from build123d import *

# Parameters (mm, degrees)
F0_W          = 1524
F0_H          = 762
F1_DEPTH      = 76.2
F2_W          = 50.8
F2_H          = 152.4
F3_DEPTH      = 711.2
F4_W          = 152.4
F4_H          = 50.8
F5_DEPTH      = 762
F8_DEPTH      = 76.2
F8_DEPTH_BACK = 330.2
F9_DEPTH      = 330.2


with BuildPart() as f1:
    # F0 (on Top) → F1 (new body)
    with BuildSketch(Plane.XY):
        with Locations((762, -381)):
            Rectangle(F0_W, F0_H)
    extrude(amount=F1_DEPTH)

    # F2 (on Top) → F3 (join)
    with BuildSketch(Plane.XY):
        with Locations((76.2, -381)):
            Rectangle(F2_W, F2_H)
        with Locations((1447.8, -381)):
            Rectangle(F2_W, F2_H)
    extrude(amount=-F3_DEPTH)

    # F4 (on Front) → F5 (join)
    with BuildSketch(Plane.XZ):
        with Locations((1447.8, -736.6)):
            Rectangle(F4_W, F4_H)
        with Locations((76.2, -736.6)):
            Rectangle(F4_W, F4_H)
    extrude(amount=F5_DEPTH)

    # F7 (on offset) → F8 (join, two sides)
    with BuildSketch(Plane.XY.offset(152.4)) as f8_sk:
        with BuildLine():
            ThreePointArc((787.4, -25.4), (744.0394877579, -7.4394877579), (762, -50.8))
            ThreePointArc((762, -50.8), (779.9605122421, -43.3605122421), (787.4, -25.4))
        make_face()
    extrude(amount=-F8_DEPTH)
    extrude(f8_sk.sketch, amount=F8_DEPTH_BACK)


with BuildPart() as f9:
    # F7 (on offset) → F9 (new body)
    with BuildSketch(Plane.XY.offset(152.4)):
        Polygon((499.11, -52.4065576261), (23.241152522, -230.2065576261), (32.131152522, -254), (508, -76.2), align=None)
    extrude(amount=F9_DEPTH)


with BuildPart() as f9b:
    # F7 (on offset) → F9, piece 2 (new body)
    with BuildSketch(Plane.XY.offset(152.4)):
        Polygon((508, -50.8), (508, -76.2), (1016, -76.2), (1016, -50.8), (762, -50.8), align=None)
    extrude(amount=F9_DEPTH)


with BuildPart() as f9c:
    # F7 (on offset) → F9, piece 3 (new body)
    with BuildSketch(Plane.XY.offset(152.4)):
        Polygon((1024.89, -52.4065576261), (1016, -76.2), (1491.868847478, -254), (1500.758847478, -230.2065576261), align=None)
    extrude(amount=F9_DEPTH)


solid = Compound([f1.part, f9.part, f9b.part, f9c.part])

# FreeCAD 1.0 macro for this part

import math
import FreeCAD as App
import Part
import Sketcher

V = App.Vector
Q = App.Units.Quantity

doc = App.newDocument("Part")
params = doc.addObject("Spreadsheet::Sheet", "Params")
for row, (alias, value) in enumerate([
    ("sketch1_width", "60 in"),
    ("sketch1_height", "30 in"),
    ("pad1_length", "3 in"),
    ("sketch2_width", "2 in"),
    ("sketch2_height", "6 in"),
    ("pad2_length", "28 in"),
    ("sketch3_width", "6 in"),
    ("sketch3_height", "2 in"),
    ("pad3_length", "30 in"),
    ("sketch4_radius", "1 in"),
    ("pad4_length", "3 in"),
    ("pad4_length2", "13 in"),
    ("sketch5_length", "20 in"),
    ("sketch5_length2", "1 in"),
    ("pad5_length", "13 in"),
    ("sketch6_width", "20 in"),
    ("sketch6_height", "1 in"),
    ("pad6_length", "13 in"),
    ("sketch7_length", "1 in"),
    ("sketch7_length2", "20 in"),
    ("pad7_length", "13 in"),
], start=1):
    params.set(f"A{row}", alias)
    params.set(f"B{row}", "=" + value)
    params.setAlias(f"B{row}", alias)

body = doc.addObject("PartDesign::Body", "Body")

sketch1 = doc.addObject("Sketcher::SketchObject", "Sketch")
body.addObject(sketch1)
sketch1.AttachmentSupport = (doc.XY_Plane, [""])
sketch1.MapMode = "FlatFace"
sketch1.addGeometry(Part.LineSegment(V(0, 0, 0), V(0, -762, 0)), False)
sketch1.addGeometry(Part.LineSegment(V(0, -762, 0), V(1524, -762, 0)), False)
sketch1.addGeometry(Part.LineSegment(V(1524, -762, 0), V(1524, 0, 0)), False)
sketch1.addGeometry(Part.LineSegment(V(1524, 0, 0), V(0, 0, 0)), False)
sketch1.addConstraint(Sketcher.Constraint("Coincident", 0, 2, 1, 1))
sketch1.addConstraint(Sketcher.Constraint("Coincident", 1, 2, 2, 1))
sketch1.addConstraint(Sketcher.Constraint("Coincident", 2, 2, 3, 1))
sketch1.addConstraint(Sketcher.Constraint("Coincident", 3, 2, 0, 1))
sketch1.addConstraint(Sketcher.Constraint("Vertical", 0))
sketch1.addConstraint(Sketcher.Constraint("Horizontal", 1))
sketch1.addConstraint(Sketcher.Constraint("Vertical", 2))
sketch1.addConstraint(Sketcher.Constraint("Horizontal", 3))
sketch1.addConstraint(Sketcher.Constraint("Coincident", 3, 2, -1, 1))
sketch1.addConstraint(Sketcher.Constraint("DistanceX", 1, 1, 1, 2, Q("60 in")))
sketch1.addConstraint(Sketcher.Constraint("DistanceY", 0, 2, 0, 1, Q("30 in")))
sketch1.setExpression("Constraints[9]", "Params.sketch1_width")
sketch1.setExpression("Constraints[10]", "Params.sketch1_height")
pad1 = doc.addObject("PartDesign::Pad", "Pad")
body.addObject(pad1)
pad1.Profile = sketch1
pad1.setExpression("Length", "Params.pad1_length")

sketch2 = doc.addObject("Sketcher::SketchObject", "Sketch001")
body.addObject(sketch2)
sketch2.AttachmentSupport = (doc.XY_Plane, [""])
sketch2.MapMode = "FlatFace"
sketch2.addGeometry(Part.LineSegment(V(51, -305, 0), V(51, -457, 0)), False)
sketch2.addGeometry(Part.LineSegment(V(51, -457, 0), V(102, -457, 0)), False)
sketch2.addGeometry(Part.LineSegment(V(102, -457, 0), V(102, -305, 0)), False)
sketch2.addGeometry(Part.LineSegment(V(102, -305, 0), V(51, -305, 0)), False)
sketch2.addGeometry(Part.LineSegment(V(1422, -305, 0), V(1422, -457, 0)), False)
sketch2.addGeometry(Part.LineSegment(V(1422, -457, 0), V(1473, -457, 0)), False)
sketch2.addGeometry(Part.LineSegment(V(1473, -457, 0), V(1473, -305, 0)), False)
sketch2.addGeometry(Part.LineSegment(V(1473, -305, 0), V(1422, -305, 0)), False)
sketch2.addConstraint(Sketcher.Constraint("Coincident", 0, 2, 1, 1))
sketch2.addConstraint(Sketcher.Constraint("Coincident", 1, 2, 2, 1))
sketch2.addConstraint(Sketcher.Constraint("Coincident", 2, 2, 3, 1))
sketch2.addConstraint(Sketcher.Constraint("Coincident", 3, 2, 0, 1))
sketch2.addConstraint(Sketcher.Constraint("Coincident", 4, 2, 5, 1))
sketch2.addConstraint(Sketcher.Constraint("Coincident", 5, 2, 6, 1))
sketch2.addConstraint(Sketcher.Constraint("Coincident", 6, 2, 7, 1))
sketch2.addConstraint(Sketcher.Constraint("Coincident", 7, 2, 4, 1))
sketch2.addConstraint(Sketcher.Constraint("Vertical", 0))
sketch2.addConstraint(Sketcher.Constraint("Horizontal", 1))
sketch2.addConstraint(Sketcher.Constraint("Vertical", 2))
sketch2.addConstraint(Sketcher.Constraint("Horizontal", 3))
sketch2.addConstraint(Sketcher.Constraint("Vertical", 4))
sketch2.addConstraint(Sketcher.Constraint("Horizontal", 5))
sketch2.addConstraint(Sketcher.Constraint("Vertical", 6))
sketch2.addConstraint(Sketcher.Constraint("Horizontal", 7))
sketch2.addConstraint(Sketcher.Constraint("Horizontal", 1, 2, 4, 2))
sketch2.addConstraint(Sketcher.Constraint("Horizontal", 3, 2, 6, 2))
sketch2.addConstraint(Sketcher.Constraint("Equal", 3, 5))
sketch2.addConstraint(Sketcher.Constraint("DistanceX", 1, 1, 1, 2, Q("2 in")))
sketch2.addConstraint(Sketcher.Constraint("DistanceY", 0, 2, 0, 1, Q("6 in")))
sketch2.addConstraint(Sketcher.Constraint("DistanceX", -1, 1, 0, 2, Q("2 in")))
sketch2.addConstraint(Sketcher.Constraint("DistanceY", 0, 2, -1, 1, Q("18 in")))
sketch2.addConstraint(Sketcher.Constraint("DistanceX", -1, 1, 4, 2, Q("56 in")))
sketch2.setExpression("Constraints[19]", "Params.sketch2_width")
sketch2.setExpression("Constraints[20]", "Params.sketch2_height")
pad2 = doc.addObject("PartDesign::Pad", "Pad001")
body.addObject(pad2)
pad2.Profile = sketch2
pad2.setExpression("Length", "Params.pad2_length")
pad2.Reversed = True

sketch3 = doc.addObject("Sketcher::SketchObject", "Sketch002")
body.addObject(sketch3)
sketch3.AttachmentSupport = (doc.XZ_Plane, [""])
sketch3.MapMode = "FlatFace"
sketch3.addGeometry(Part.LineSegment(V(1372, -711, 0), V(1372, -762, 0)), False)
sketch3.addGeometry(Part.LineSegment(V(1372, -762, 0), V(1524, -762, 0)), False)
sketch3.addGeometry(Part.LineSegment(V(1524, -762, 0), V(1524, -711, 0)), False)
sketch3.addGeometry(Part.LineSegment(V(1524, -711, 0), V(1372, -711, 0)), False)
sketch3.addGeometry(Part.LineSegment(V(0, -711, 0), V(0, -762, 0)), False)
sketch3.addGeometry(Part.LineSegment(V(0, -762, 0), V(152, -762, 0)), False)
sketch3.addGeometry(Part.LineSegment(V(152, -762, 0), V(152, -711, 0)), False)
sketch3.addGeometry(Part.LineSegment(V(152, -711, 0), V(0, -711, 0)), False)
sketch3.addConstraint(Sketcher.Constraint("Coincident", 0, 2, 1, 1))
sketch3.addConstraint(Sketcher.Constraint("Coincident", 1, 2, 2, 1))
sketch3.addConstraint(Sketcher.Constraint("Coincident", 2, 2, 3, 1))
sketch3.addConstraint(Sketcher.Constraint("Coincident", 3, 2, 0, 1))
sketch3.addConstraint(Sketcher.Constraint("Coincident", 4, 2, 5, 1))
sketch3.addConstraint(Sketcher.Constraint("Coincident", 5, 2, 6, 1))
sketch3.addConstraint(Sketcher.Constraint("Coincident", 6, 2, 7, 1))
sketch3.addConstraint(Sketcher.Constraint("Coincident", 7, 2, 4, 1))
sketch3.addConstraint(Sketcher.Constraint("Vertical", 0))
sketch3.addConstraint(Sketcher.Constraint("Horizontal", 1))
sketch3.addConstraint(Sketcher.Constraint("Vertical", 2))
sketch3.addConstraint(Sketcher.Constraint("Horizontal", 3))
sketch3.addConstraint(Sketcher.Constraint("Vertical", 4))
sketch3.addConstraint(Sketcher.Constraint("Horizontal", 5))
sketch3.addConstraint(Sketcher.Constraint("Vertical", 6))
sketch3.addConstraint(Sketcher.Constraint("Horizontal", 7))
sketch3.addConstraint(Sketcher.Constraint("PointOnObject", 4, 2, -2))
sketch3.addConstraint(Sketcher.Constraint("Horizontal", 1, 2, 4, 2))
sketch3.addConstraint(Sketcher.Constraint("Horizontal", 3, 2, 6, 2))
sketch3.addConstraint(Sketcher.Constraint("Equal", 3, 5))
sketch3.addConstraint(Sketcher.Constraint("DistanceX", 1, 1, 1, 2, Q("6 in")))
sketch3.addConstraint(Sketcher.Constraint("DistanceY", 0, 2, 0, 1, Q("2 in")))
sketch3.addConstraint(Sketcher.Constraint("DistanceX", -1, 1, 0, 2, Q("54 in")))
sketch3.addConstraint(Sketcher.Constraint("DistanceY", 0, 2, -1, 1, Q("30 in")))
sketch3.setExpression("Constraints[20]", "Params.sketch3_width")
sketch3.setExpression("Constraints[21]", "Params.sketch3_height")
pad3 = doc.addObject("PartDesign::Pad", "Pad002")
body.addObject(pad3)
pad3.Profile = sketch3
pad3.setExpression("Length", "Params.pad3_length")

sketch4 = doc.addObject("Sketcher::SketchObject", "Sketch003")
body.addObject(sketch4)
sketch4.AttachmentSupport = (doc.XY_Plane, [""])
sketch4.MapMode = "FlatFace"
sketch4.AttachmentOffset = App.Placement(V(0, 0, 6 * 25.4), App.Rotation())
sketch4.addGeometry(Part.ArcOfCircle(Part.Circle(V(762, -25, 0), V(0, 0, 1), 25), math.radians(0), math.radians(270)), False)
sketch4.addGeometry(Part.ArcOfCircle(Part.Circle(V(762, -25, 0), V(0, 0, 1), 25), math.radians(-90), math.radians(0)), False)
sketch4.addConstraint(Sketcher.Constraint("Tangent", 0, 1, 1, 2))
sketch4.addConstraint(Sketcher.Constraint("Coincident", 1, 1, 0, 2))
sketch4.addConstraint(Sketcher.Constraint("Horizontal", 1, 3, 0, 1))
sketch4.addConstraint(Sketcher.Constraint("Vertical", 0, 3, 1, 1))
sketch4.addConstraint(Sketcher.Constraint("Radius", 0, Q("1 in")))
sketch4.addConstraint(Sketcher.Constraint("DistanceX", -1, 1, 0, 3, Q("30 in")))
sketch4.addConstraint(Sketcher.Constraint("DistanceY", 0, 3, -1, 1, Q("1 in")))
sketch4.setExpression("Constraints[4]", "Params.sketch4_radius")
pad4 = doc.addObject("PartDesign::Pad", "Pad003")
body.addObject(pad4)
pad4.Profile = sketch4
pad4.Type = "TwoLengths"
pad4.setExpression("Length", "Params.pad4_length")
pad4.setExpression("Length2", "Params.pad4_length2")
pad4.Reversed = True
body2 = doc.addObject("PartDesign::Body", "Body001")

sketch5 = doc.addObject("Sketcher::SketchObject", "Sketch004")
body2.addObject(sketch5)
sketch5.AttachmentSupport = (doc.getObject("XY_Plane001"), [""])
sketch5.MapMode = "FlatFace"
sketch5.AttachmentOffset = App.Placement(V(0, 0, 6 * 25.4), App.Rotation())
sketch5.addGeometry(Part.LineSegment(V(499, -52, 0), V(23, -230, 0)), False)
sketch5.addGeometry(Part.LineSegment(V(23, -230, 0), V(32, -254, 0)), False)
sketch5.addGeometry(Part.LineSegment(V(32, -254, 0), V(508, -76, 0)), False)
sketch5.addGeometry(Part.LineSegment(V(508, -76, 0), V(499, -52, 0)), False)
sketch5.addConstraint(Sketcher.Constraint("Coincident", 0, 2, 1, 1))
sketch5.addConstraint(Sketcher.Constraint("Coincident", 1, 2, 2, 1))
sketch5.addConstraint(Sketcher.Constraint("Coincident", 2, 2, 3, 1))
sketch5.addConstraint(Sketcher.Constraint("Coincident", 3, 2, 0, 1))
sketch5.addConstraint(Sketcher.Constraint("Perpendicular", 0, 1))
sketch5.addConstraint(Sketcher.Constraint("Perpendicular", 1, 2))
sketch5.addConstraint(Sketcher.Constraint("Perpendicular", 2, 3))
sketch5.addConstraint(Sketcher.Constraint("Distance", 0, Q("20 in")))
sketch5.addConstraint(Sketcher.Constraint("Distance", 1, Q("1 in")))
sketch5.addConstraint(Sketcher.Constraint("DistanceY", 1, 2, -1, 1, Q("10 in")))
sketch5.addConstraint(Sketcher.Constraint("DistanceX", -1, 1, 2, 2, Q("20 in")))
sketch5.addConstraint(Sketcher.Constraint("DistanceY", 2, 2, -1, 1, Q("3 in")))
sketch5.setExpression("Constraints[7]", "Params.sketch5_length")
sketch5.setExpression("Constraints[8]", "Params.sketch5_length2")
pad5 = doc.addObject("PartDesign::Pad", "Pad004")
body2.addObject(pad5)
pad5.Profile = sketch5
pad5.setExpression("Length", "Params.pad5_length")
body3 = doc.addObject("PartDesign::Body", "Body002")

sketch6 = doc.addObject("Sketcher::SketchObject", "Sketch005")
body3.addObject(sketch6)
sketch6.AttachmentSupport = (doc.getObject("XY_Plane002"), [""])
sketch6.MapMode = "FlatFace"
sketch6.AttachmentOffset = App.Placement(V(0, 0, 6 * 25.4), App.Rotation())
sketch6.addGeometry(Part.LineSegment(V(508, -51, 0), V(508, -76, 0)), False)
sketch6.addGeometry(Part.LineSegment(V(508, -76, 0), V(1016, -76, 0)), False)
sketch6.addGeometry(Part.LineSegment(V(1016, -76, 0), V(1016, -51, 0)), False)
sketch6.addGeometry(Part.LineSegment(V(1016, -51, 0), V(508, -51, 0)), False)
sketch6.addConstraint(Sketcher.Constraint("Coincident", 0, 2, 1, 1))
sketch6.addConstraint(Sketcher.Constraint("Coincident", 1, 2, 2, 1))
sketch6.addConstraint(Sketcher.Constraint("Coincident", 2, 2, 3, 1))
sketch6.addConstraint(Sketcher.Constraint("Coincident", 3, 2, 0, 1))
sketch6.addConstraint(Sketcher.Constraint("Vertical", 0))
sketch6.addConstraint(Sketcher.Constraint("Horizontal", 1))
sketch6.addConstraint(Sketcher.Constraint("Vertical", 2))
sketch6.addConstraint(Sketcher.Constraint("Horizontal", 3))
sketch6.addConstraint(Sketcher.Constraint("DistanceX", 1, 1, 1, 2, Q("20 in")))
sketch6.addConstraint(Sketcher.Constraint("DistanceY", 0, 2, 0, 1, Q("1 in")))
sketch6.addConstraint(Sketcher.Constraint("DistanceX", -1, 1, 0, 2, Q("20 in")))
sketch6.addConstraint(Sketcher.Constraint("DistanceY", 0, 2, -1, 1, Q("3 in")))
sketch6.setExpression("Constraints[8]", "Params.sketch6_width")
sketch6.setExpression("Constraints[9]", "Params.sketch6_height")
pad6 = doc.addObject("PartDesign::Pad", "Pad005")
body3.addObject(pad6)
pad6.Profile = sketch6
pad6.setExpression("Length", "Params.pad6_length")
body4 = doc.addObject("PartDesign::Body", "Body003")

sketch7 = doc.addObject("Sketcher::SketchObject", "Sketch006")
body4.addObject(sketch7)
sketch7.AttachmentSupport = (doc.getObject("XY_Plane003"), [""])
sketch7.MapMode = "FlatFace"
sketch7.AttachmentOffset = App.Placement(V(0, 0, 6 * 25.4), App.Rotation())
sketch7.addGeometry(Part.LineSegment(V(1025, -52, 0), V(1016, -76, 0)), False)
sketch7.addGeometry(Part.LineSegment(V(1016, -76, 0), V(1492, -254, 0)), False)
sketch7.addGeometry(Part.LineSegment(V(1492, -254, 0), V(1501, -230, 0)), False)
sketch7.addGeometry(Part.LineSegment(V(1501, -230, 0), V(1025, -52, 0)), False)
sketch7.addConstraint(Sketcher.Constraint("Coincident", 0, 2, 1, 1))
sketch7.addConstraint(Sketcher.Constraint("Coincident", 1, 2, 2, 1))
sketch7.addConstraint(Sketcher.Constraint("Coincident", 2, 2, 3, 1))
sketch7.addConstraint(Sketcher.Constraint("Coincident", 3, 2, 0, 1))
sketch7.addConstraint(Sketcher.Constraint("Perpendicular", 0, 1))
sketch7.addConstraint(Sketcher.Constraint("Perpendicular", 1, 2))
sketch7.addConstraint(Sketcher.Constraint("Perpendicular", 2, 3))
sketch7.addConstraint(Sketcher.Constraint("Distance", 0, Q("1 in")))
sketch7.addConstraint(Sketcher.Constraint("Distance", 1, Q("20 in")))
sketch7.addConstraint(Sketcher.Constraint("DistanceX", -1, 1, 0, 2, Q("40 in")))
sketch7.addConstraint(Sketcher.Constraint("DistanceY", 0, 2, -1, 1, Q("3 in")))
sketch7.addConstraint(Sketcher.Constraint("DistanceY", 1, 2, -1, 1, Q("10 in")))
sketch7.setExpression("Constraints[7]", "Params.sketch7_length")
sketch7.setExpression("Constraints[8]", "Params.sketch7_length2")
pad7 = doc.addObject("PartDesign::Pad", "Pad006")
body4.addObject(pad7)
pad7.Profile = sketch7
pad7.setExpression("Length", "Params.pad7_length")

doc.recompute()
